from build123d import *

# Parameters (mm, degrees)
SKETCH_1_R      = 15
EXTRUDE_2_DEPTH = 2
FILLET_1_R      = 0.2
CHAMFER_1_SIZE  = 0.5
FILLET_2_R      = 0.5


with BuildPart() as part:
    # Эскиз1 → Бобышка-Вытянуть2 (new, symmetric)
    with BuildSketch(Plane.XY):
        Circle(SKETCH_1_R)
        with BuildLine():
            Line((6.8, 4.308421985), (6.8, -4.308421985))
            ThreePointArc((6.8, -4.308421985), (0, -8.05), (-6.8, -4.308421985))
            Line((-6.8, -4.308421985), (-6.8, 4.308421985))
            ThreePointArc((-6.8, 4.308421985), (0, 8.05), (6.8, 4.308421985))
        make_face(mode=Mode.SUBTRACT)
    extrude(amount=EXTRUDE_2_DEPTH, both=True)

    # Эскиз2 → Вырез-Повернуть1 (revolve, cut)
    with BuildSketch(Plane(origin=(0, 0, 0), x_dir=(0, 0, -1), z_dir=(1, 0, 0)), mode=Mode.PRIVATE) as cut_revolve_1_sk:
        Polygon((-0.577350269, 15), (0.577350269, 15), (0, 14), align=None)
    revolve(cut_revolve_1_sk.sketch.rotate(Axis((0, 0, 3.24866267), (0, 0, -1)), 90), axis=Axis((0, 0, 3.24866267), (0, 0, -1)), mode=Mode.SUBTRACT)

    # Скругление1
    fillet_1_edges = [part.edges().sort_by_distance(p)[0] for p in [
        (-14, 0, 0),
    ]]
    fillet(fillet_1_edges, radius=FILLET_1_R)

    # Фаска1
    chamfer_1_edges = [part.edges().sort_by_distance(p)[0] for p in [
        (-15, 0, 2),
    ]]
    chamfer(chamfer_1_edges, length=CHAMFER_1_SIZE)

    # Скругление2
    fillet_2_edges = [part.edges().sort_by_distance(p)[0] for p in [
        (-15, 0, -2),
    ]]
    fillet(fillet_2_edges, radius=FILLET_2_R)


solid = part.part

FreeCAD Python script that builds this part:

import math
import FreeCAD as App
import Part
import Sketcher
Q = App.Units.Quantity


def edges_at(feature, points):
    """Names of the edges that pass closest to the given points."""
    edges = feature.Shape.Edges
    near = lambda p: min(range(len(edges)), key=lambda i: edges[i].distToShape(Part.Vertex(*p))[0])
    return sorted({f"Edge{near(p) + 1}" for p in points})


def add_polygon(sketch, points):
    """Adds a closed chain of lines whose ends are joined by coincident constraints."""
    first, n = sketch.GeometryCount, len(points)
    for a, b in zip(points, points[1:] + points[:1]):
        sketch.addGeometry(Part.LineSegment(App.Vector(*a, 0), App.Vector(*b, 0)), False)
    for i in range(n):
        sketch.addConstraint(Sketcher.Constraint("Coincident", first + i, 2, first + (i + 1) % n, 1))

doc = App.newDocument("Part")
params = doc.addObject("Spreadsheet::Sheet", "Params")
for row, (alias, value) in enumerate([
    ("sketch1_diameter", "30 mm"),
    ("sketch1_radius", "8.05 mm"),
    ("pad1_length", "4 mm"),
    ("groove_angle", "360 deg"),
    ("fillet_radius", "0.2 mm"),
    ("chamfer_size", "0.5 mm"),
    ("fillet2_radius", "0.5 mm"),
], start=1):
    params.set(f"A{row}", alias)
    params.set(f"B{row}", "=" + value)
    params.setAlias(f"B{row}", alias)

body = doc.addObject("PartDesign::Body", "Body")

sketch1 = doc.addObject("Sketcher::SketchObject", "Sketch")
body.addObject(sketch1)
sketch1.AttachmentSupport = (doc.XY_Plane, [""])
sketch1.MapMode = "FlatFace"
sketch1.addGeometry(Part.Circle(App.Vector(0, 0, 0), App.Vector(0, 0, 1), 15), False)
sketch1.addGeometry(Part.ArcOfCircle(Part.Circle(App.Vector(0, 0, 0), App.Vector(0, 0, 1), 8), math.radians(32), math.radians(148)), False)
sketch1.addGeometry(Part.LineSegment(App.Vector(7, 4, 0), App.Vector(7, -4, 0)), False)
sketch1.addGeometry(Part.ArcOfCircle(Part.Circle(App.Vector(0, 0, 0), App.Vector(0, 0, 1), 8), math.radians(-148), math.radians(-32)), False)
sketch1.addGeometry(Part.LineSegment(App.Vector(-7, -4, 0), App.Vector(-7, 4, 0)), False)
sketch1.addConstraint(Sketcher.Constraint("Coincident", 1, 1, 2, 1))
sketch1.addConstraint(Sketcher.Constraint("Coincident", 2, 2, 3, 2))
sketch1.addConstraint(Sketcher.Constraint("Coincident", 3, 1, 4, 1))
sketch1.addConstraint(Sketcher.Constraint("Coincident", 4, 2, 1, 2))
sketch1.addConstraint(Sketcher.Constraint("Vertical", 2))
sketch1.addConstraint(Sketcher.Constraint("Vertical", 4))
sketch1.addConstraint(Sketcher.Constraint("Coincident", 0, 3, -1, 1))
sketch1.addConstraint(Sketcher.Constraint("Coincident", 1, 3, -1, 1))
sketch1.addConstraint(Sketcher.Constraint("Coincident", 3, 3, -1, 1))
sketch1.addConstraint(Sketcher.Constraint("Equal", 1, 3))
sketch1.addConstraint(Sketcher.Constraint("Horizontal", 2, 2, 3, 1))
sketch1.addConstraint(Sketcher.Constraint("Diameter", 0, 30.0))
sketch1.addConstraint(Sketcher.Constraint("Radius", 1, 8.05))
sketch1.addConstraint(Sketcher.Constraint("DistanceX", -1, 1, 1, 1, 6.8))
sketch1.setExpression("Constraints[11]", "Params.sketch1_diameter")
sketch1.setExpression("Constraints[12]", "Params.sketch1_radius")
pad1 = doc.addObject("PartDesign::Pad", "Pad")
body.addObject(pad1)
pad1.Profile = sketch1
pad1.setExpression("Length", "Params.pad1_length")
pad1.Midplane = True

sketch2 = doc.addObject("Sketcher::SketchObject", "Sketch001")
body.addObject(sketch2)
sketch2.AttachmentSupport = (doc.YZ_Plane, [""])
sketch2.MapMode = "FlatFace"
add_polygon(sketch2, [(15, -0.6), (15, 0.6), (14, 0)])
sketch2.addConstraint(Sketcher.Constraint("Vertical", 0))
sketch2.addConstraint(Sketcher.Constraint("PointOnObject", 1, 2, -1))
sketch2.addConstraint(Sketcher.Constraint("Equal", 1, 2))
sketch2.addConstraint(Sketcher.Constraint("Angle", 1, Q("-150 deg")))
sketch2.addConstraint(Sketcher.Constraint("DistanceX", -1, 1, 0, 2, 15.0))
sketch2.addConstraint(Sketcher.Constraint("DistanceX", -1, 1, 1, 2, 14.0))
groove = doc.addObject("PartDesign::Groove", "Groove")
body.addObject(groove)
groove.Profile = sketch2
groove.ReferenceAxis = (sketch2, ["V_Axis"])
groove.setExpression("Angle", "Params.groove_angle")
doc.recompute()

fillet = doc.addObject("PartDesign::Fillet", "Fillet")
body.addObject(fillet)
fillet.Base = (groove, edges_at(groove, [(-14, 0, 0)]))
fillet.setExpression("Radius", "Params.fillet_radius")
doc.recompute()

chamfer = doc.addObject("PartDesign::Chamfer", "Chamfer")
body.addObject(chamfer)
chamfer.Base = (fillet, edges_at(fillet, [(-15, 0, 2)]))
chamfer.setExpression("Size", "Params.chamfer_size")
doc.recompute()

fillet2 = doc.addObject("PartDesign::Fillet", "Fillet001")
body.addObject(fillet2)
fillet2.Base = (chamfer, edges_at(chamfer, [(-15, 0, -2)]))
fillet2.setExpression("Radius", "Params.fillet2_radius")

doc.recompute()
